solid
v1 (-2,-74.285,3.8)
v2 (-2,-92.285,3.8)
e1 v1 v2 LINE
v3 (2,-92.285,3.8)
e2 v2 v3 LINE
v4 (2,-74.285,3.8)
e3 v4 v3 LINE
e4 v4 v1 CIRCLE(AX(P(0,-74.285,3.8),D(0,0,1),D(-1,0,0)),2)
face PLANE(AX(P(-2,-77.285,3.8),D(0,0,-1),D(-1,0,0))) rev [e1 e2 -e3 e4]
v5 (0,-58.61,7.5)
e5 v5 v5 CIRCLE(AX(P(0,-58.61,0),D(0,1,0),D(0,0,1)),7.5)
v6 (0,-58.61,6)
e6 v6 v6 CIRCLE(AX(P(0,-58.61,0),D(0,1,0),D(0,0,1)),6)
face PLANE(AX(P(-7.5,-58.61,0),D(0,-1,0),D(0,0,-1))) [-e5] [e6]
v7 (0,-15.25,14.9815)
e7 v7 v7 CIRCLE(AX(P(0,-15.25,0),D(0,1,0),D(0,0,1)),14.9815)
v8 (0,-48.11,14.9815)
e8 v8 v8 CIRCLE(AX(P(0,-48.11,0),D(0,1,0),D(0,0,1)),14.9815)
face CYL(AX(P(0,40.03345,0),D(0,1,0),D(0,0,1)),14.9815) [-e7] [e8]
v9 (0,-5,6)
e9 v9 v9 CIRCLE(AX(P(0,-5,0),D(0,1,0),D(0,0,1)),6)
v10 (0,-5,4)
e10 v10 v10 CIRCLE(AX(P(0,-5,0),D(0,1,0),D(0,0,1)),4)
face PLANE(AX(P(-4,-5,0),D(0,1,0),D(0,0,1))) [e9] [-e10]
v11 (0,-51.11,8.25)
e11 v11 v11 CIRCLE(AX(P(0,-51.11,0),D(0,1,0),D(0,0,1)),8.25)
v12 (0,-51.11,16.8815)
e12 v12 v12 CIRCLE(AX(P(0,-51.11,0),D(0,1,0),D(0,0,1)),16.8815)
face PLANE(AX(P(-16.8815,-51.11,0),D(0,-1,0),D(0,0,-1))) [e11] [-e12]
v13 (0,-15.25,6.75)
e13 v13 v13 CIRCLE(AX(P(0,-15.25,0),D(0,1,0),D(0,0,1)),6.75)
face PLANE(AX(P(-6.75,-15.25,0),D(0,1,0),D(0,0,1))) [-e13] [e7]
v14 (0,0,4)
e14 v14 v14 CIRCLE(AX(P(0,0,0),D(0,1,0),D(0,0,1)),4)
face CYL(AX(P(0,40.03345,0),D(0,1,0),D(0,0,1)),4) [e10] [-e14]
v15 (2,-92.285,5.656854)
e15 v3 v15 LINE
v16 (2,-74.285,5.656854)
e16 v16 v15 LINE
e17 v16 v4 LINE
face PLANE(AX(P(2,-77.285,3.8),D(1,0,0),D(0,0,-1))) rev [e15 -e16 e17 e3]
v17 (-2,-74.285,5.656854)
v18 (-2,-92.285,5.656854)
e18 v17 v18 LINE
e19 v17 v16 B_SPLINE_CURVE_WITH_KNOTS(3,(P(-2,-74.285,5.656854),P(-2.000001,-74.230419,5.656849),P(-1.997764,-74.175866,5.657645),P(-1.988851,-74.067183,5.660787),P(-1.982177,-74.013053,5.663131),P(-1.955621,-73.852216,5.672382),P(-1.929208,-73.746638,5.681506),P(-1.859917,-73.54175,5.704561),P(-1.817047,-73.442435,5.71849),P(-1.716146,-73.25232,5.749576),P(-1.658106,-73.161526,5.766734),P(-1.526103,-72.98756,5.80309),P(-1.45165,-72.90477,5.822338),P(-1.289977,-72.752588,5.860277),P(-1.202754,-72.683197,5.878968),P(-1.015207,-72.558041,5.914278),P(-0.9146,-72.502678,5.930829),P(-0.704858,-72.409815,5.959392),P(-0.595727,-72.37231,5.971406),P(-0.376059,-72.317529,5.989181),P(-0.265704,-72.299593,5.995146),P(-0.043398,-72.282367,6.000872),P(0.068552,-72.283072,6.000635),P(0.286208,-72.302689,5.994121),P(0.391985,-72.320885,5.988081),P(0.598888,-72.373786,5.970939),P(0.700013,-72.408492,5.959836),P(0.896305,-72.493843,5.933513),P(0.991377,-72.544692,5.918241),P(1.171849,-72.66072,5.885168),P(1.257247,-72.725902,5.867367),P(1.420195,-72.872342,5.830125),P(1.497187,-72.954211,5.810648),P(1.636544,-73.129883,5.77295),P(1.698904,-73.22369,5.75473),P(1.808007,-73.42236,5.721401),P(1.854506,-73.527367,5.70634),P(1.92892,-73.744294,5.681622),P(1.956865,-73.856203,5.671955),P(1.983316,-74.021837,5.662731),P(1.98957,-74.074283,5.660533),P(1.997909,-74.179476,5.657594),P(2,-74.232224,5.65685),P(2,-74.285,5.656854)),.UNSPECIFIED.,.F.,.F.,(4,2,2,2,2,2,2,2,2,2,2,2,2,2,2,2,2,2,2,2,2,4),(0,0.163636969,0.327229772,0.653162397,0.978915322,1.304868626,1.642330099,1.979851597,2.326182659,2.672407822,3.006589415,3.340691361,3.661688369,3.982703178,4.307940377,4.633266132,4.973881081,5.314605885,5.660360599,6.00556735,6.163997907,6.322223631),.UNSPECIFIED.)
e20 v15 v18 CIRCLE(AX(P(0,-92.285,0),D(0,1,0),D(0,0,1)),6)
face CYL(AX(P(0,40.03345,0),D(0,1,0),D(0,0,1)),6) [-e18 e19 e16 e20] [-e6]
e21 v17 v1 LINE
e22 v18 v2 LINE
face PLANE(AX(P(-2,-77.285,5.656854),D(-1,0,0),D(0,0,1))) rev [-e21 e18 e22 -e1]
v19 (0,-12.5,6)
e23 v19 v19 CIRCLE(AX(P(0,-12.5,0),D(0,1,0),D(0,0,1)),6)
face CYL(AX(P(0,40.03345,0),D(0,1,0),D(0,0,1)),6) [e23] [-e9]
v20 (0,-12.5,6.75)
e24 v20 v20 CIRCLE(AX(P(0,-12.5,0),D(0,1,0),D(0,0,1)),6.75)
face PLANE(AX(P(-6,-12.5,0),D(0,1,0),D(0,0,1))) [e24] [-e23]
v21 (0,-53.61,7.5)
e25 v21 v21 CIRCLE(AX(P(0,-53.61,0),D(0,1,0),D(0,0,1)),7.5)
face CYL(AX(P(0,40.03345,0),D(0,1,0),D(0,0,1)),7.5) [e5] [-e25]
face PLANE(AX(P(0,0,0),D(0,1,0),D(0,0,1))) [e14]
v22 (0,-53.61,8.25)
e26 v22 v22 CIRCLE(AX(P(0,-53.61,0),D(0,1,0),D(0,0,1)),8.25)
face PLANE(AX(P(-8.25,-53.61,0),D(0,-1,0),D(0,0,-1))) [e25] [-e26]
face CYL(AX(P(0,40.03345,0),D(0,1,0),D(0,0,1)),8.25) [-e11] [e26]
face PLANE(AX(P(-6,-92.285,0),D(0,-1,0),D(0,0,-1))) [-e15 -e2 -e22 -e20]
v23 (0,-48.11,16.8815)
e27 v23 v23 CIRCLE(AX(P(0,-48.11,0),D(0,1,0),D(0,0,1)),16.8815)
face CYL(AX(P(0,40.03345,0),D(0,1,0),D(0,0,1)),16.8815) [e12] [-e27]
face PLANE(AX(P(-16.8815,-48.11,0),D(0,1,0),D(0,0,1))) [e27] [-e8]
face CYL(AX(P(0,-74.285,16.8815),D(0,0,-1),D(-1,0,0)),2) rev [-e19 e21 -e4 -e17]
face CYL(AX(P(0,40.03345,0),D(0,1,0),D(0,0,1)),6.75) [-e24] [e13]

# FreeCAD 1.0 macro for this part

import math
import FreeCAD as App
import Part
import Sketcher
from FreeCAD import Vector
Q = App.Units.Quantity

doc = App.newDocument("Part")
body = doc.addObject("PartDesign::Body", "Body")

sketch1 = body.newObject("Sketcher::SketchObject", "Sketch")
sketch1.AttachmentSupport = (doc.getObject("XY_Plane"), [""])
sketch1.MapMode = "FlatFace"
sketch1.addGeometry([
    Part.LineSegment(Vector(0, 0, 0), Vector(-4, 0, 0)),
    Part.LineSegment(Vector(-4, 0, 0), Vector(-4, -5, 0)),
    Part.LineSegment(Vector(-4, -5, 0), Vector(-6, -5, 0)),
    Part.LineSegment(Vector(-6, -5, 0), Vector(-6, -12.5, 0)),
    Part.LineSegment(Vector(-6, -12.5, 0), Vector(-6.8, -12.5, 0)),
    Part.LineSegment(Vector(-6.8, -12.5, 0), Vector(-6.8, -15.2, 0)),
    Part.LineSegment(Vector(-6.8, -15.2, 0), Vector(-15, -15.2, 0)),
    Part.LineSegment(Vector(-15, -15.2, 0), Vector(-15, -48.1, 0)),
    Part.LineSegment(Vector(-15, -48.1, 0), Vector(-16.9, -48.1, 0)),
    Part.LineSegment(Vector(-16.9, -48.1, 0), Vector(-16.9, -51.1, 0)),
    Part.LineSegment(Vector(-16.9, -51.1, 0), Vector(-8.2, -51.1, 0)),
    Part.LineSegment(Vector(-8.2, -51.1, 0), Vector(-8.2, -53.6, 0)),
    Part.LineSegment(Vector(-8.2, -53.6, 0), Vector(-7.5, -53.6, 0)),
    Part.LineSegment(Vector(-7.5, -53.6, 0), Vector(-7.5, -58.6, 0)),
    Part.LineSegment(Vector(-7.5, -58.6, 0), Vector(-6, -58.6, 0)),
    Part.LineSegment(Vector(-6, -58.6, 0), Vector(-6, -92.3, 0)),
    Part.LineSegment(Vector(-6, -92.3, 0), Vector(0, -92.3, 0)),
    Part.LineSegment(Vector(0, -92.3, 0), Vector(0, 0, 0)),
], False)
sketch1.addConstraint([
    Sketcher.Constraint("Coincident", 0, 2, 1, 1),
    Sketcher.Constraint("Coincident", 1, 2, 2, 1),
    Sketcher.Constraint("Coincident", 2, 2, 3, 1),
    Sketcher.Constraint("Coincident", 3, 2, 4, 1),
    Sketcher.Constraint("Coincident", 4, 2, 5, 1),
    Sketcher.Constraint("Coincident", 5, 2, 6, 1),
    Sketcher.Constraint("Coincident", 6, 2, 7, 1),
    Sketcher.Constraint("Coincident", 7, 2, 8, 1),
    Sketcher.Constraint("Coincident", 8, 2, 9, 1),
    Sketcher.Constraint("Coincident", 9, 2, 10, 1),
    Sketcher.Constraint("Coincident", 10, 2, 11, 1),
    Sketcher.Constraint("Coincident", 11, 2, 12, 1),
    Sketcher.Constraint("Coincident", 12, 2, 13, 1),
    Sketcher.Constraint("Coincident", 13, 2, 14, 1),
    Sketcher.Constraint("Coincident", 14, 2, 15, 1),
    Sketcher.Constraint("Coincident", 15, 2, 16, 1),
    Sketcher.Constraint("Coincident", 16, 2, 17, 1),
    Sketcher.Constraint("Coincident", 17, 2, 0, 1),
    Sketcher.Constraint("Horizontal", 0),
    Sketcher.Constraint("Vertical", 1),
    Sketcher.Constraint("Horizontal", 2),
    Sketcher.Constraint("Vertical", 3),
    Sketcher.Constraint("Horizontal", 4),
    Sketcher.Constraint("Vertical", 5),
    Sketcher.Constraint("Horizontal", 6),
    Sketcher.Constraint("Vertical", 7),
    Sketcher.Constraint("Horizontal", 8),
    Sketcher.Constraint("Vertical", 9),
    Sketcher.Constraint("Horizontal", 10),
    Sketcher.Constraint("Vertical", 11),
    Sketcher.Constraint("Horizontal", 12),
    Sketcher.Constraint("Vertical", 13),
    Sketcher.Constraint("Horizontal", 14),
    Sketcher.Constraint("Vertical", 15),
    Sketcher.Constraint("Horizontal", 16),
    Sketcher.Constraint("Vertical", 17),
    Sketcher.Constraint("Coincident", 17, 2, -1, 1),
    Sketcher.Constraint("Vertical", 3, 2, 14, 2),
    Sketcher.Constraint("Equal", 4, 12),
    Sketcher.Constraint("Equal", 1, 13),
    Sketcher.Constraint("DistanceX", 0, 2, 0, 1, Q("4 mm")),
    Sketcher.Constraint("DistanceX", 2, 2, 2, 1, Q("2 mm")),
    Sketcher.Constraint("DistanceY", 1, 2, 1, 1, Q("5 mm")),
    Sketcher.Constraint("DistanceY", 9, 2, 9, 1, Q("3 mm")),
    Sketcher.Constraint("DistanceX", 8, 2, 8, 1, Q("1.9 mm")),
    Sketcher.Constraint("DistanceX", 14, 1, 14, 2, Q("1.5 mm")),
    Sketcher.Constraint("DistanceY", 3, 2, 3, 1, Q("7.5 mm")),
    Sketcher.Constraint("DistanceY", 11, 2, 11, 1, Q("2.5 mm")),
    Sketcher.Constraint("DistanceX", 4, 2, 4, 1, Q("0.75 mm")),
    Sketcher.Constraint("DistanceY", 5, 2, 5, 1, Q("2.75 mm")),
    Sketcher.Constraint("DistanceY", 7, 2, 7, 1, Q("32.86 mm")),
    Sketcher.Constraint("DistanceY", 15, 2, 15, 1, Q("33.675 mm")),
    Sketcher.Constraint("DistanceX", 6, 2, 6, 1, Q("8.2315 mm")),
])
revolution = body.newObject("PartDesign::Revolution", "Revolution")
revolution.Profile = sketch1
revolution.ReferenceAxis = (sketch1, ["V_Axis"])
revolution.Angle = 360

sketch2 = body.newObject("Sketcher::SketchObject", "Sketch001")
sketch2.AttachmentSupport = (doc.getObject("XZ_Plane"), [""])
sketch2.MapMode = "FlatFace"
sketch2.AttachmentOffset = App.Placement(Vector(0, 0, 92.285), App.Rotation())
sketch2.addGeometry([
    Part.LineSegment(Vector(-2, 5.7, 0), Vector(-2, 3.8, 0)),
    Part.LineSegment(Vector(-2, 3.8, 0), Vector(2, 3.8, 0)),
    Part.LineSegment(Vector(2, 3.8, 0), Vector(2, 5.7, 0)),
    Part.ArcOfCircle(Part.Circle(Vector(0, 0, 0), Vector(0, 0, 1), 6), math.radians(71), math.radians(109)),
], False)
sketch2.addConstraint([
    Sketcher.Constraint("Coincident", 0, 2, 1, 1),
    Sketcher.Constraint("Coincident", 1, 2, 2, 1),
    Sketcher.Constraint("Coincident", 2, 2, 3, 1),
    Sketcher.Constraint("Coincident", 3, 2, 0, 1),
    Sketcher.Constraint("Vertical", 0),
    Sketcher.Constraint("Horizontal", 1),
    Sketcher.Constraint("Vertical", 2),
    Sketcher.Constraint("Coincident", 3, 3, -1, 1),
    Sketcher.Constraint("Horizontal", 2, 2, 3, 2),
    Sketcher.Constraint("Radius", 3, Q("6 mm")),
    Sketcher.Constraint("DistanceX", 1, 1, 1, 2, Q("4 mm")),
    Sketcher.Constraint("DistanceY", -1, 1, 0, 2, Q("3.8 mm")),
])
pocket1 = body.newObject("PartDesign::Pocket", "Pocket")
pocket1.Profile = sketch2
pocket1.Length = 15

sketch3 = body.newObject("Sketcher::SketchObject", "Sketch002")
sketch3.AttachmentSupport = (doc.getObject("XY_Plane"), [""])
sketch3.MapMode = "FlatFace"
sketch3.AttachmentOffset = App.Placement(Vector(0, 0, 3.8), App.Rotation())
sketch3.addGeometry([
    Part.ArcOfCircle(Part.Circle(Vector(0, -74.3, 0), Vector(0, 0, 1), 2), math.radians(0), math.radians(180)),
    Part.LineSegment(Vector(-2, -74.3, 0), Vector(-2, -92.3, 0)),
    Part.LineSegment(Vector(-2, -92.3, 0), Vector(2, -92.3, 0)),
    Part.LineSegment(Vector(2, -92.3, 0), Vector(2, -74.3, 0)),
], False)
sketch3.addConstraint([
    Sketcher.Constraint("Tangent", 0, 2, 1, 1),
    Sketcher.Constraint("Coincident", 1, 2, 2, 1),
    Sketcher.Constraint("Coincident", 2, 2, 3, 1),
    Sketcher.Constraint("Tangent", 3, 2, 0, 1),
    Sketcher.Constraint("Vertical", 1),
    Sketcher.Constraint("Horizontal", 2),
    Sketcher.Constraint("Vertical", 3),
    Sketcher.Constraint("PointOnObject", 0, 3, -2),
    Sketcher.Constraint("Radius", 0, Q("2 mm")),
    Sketcher.Constraint("DistanceY", 1, 2, 1, 1, Q("18 mm")),
    Sketcher.Constraint("DistanceY", 0, 3, -1, 1, Q("74.285 mm")),
])
pocket2 = body.newObject("PartDesign::Pocket", "Pocket001")
pocket2.Profile = sketch3
pocket2.Type = "ThroughAll"
pocket2.Reversed = True

doc.recompute()
